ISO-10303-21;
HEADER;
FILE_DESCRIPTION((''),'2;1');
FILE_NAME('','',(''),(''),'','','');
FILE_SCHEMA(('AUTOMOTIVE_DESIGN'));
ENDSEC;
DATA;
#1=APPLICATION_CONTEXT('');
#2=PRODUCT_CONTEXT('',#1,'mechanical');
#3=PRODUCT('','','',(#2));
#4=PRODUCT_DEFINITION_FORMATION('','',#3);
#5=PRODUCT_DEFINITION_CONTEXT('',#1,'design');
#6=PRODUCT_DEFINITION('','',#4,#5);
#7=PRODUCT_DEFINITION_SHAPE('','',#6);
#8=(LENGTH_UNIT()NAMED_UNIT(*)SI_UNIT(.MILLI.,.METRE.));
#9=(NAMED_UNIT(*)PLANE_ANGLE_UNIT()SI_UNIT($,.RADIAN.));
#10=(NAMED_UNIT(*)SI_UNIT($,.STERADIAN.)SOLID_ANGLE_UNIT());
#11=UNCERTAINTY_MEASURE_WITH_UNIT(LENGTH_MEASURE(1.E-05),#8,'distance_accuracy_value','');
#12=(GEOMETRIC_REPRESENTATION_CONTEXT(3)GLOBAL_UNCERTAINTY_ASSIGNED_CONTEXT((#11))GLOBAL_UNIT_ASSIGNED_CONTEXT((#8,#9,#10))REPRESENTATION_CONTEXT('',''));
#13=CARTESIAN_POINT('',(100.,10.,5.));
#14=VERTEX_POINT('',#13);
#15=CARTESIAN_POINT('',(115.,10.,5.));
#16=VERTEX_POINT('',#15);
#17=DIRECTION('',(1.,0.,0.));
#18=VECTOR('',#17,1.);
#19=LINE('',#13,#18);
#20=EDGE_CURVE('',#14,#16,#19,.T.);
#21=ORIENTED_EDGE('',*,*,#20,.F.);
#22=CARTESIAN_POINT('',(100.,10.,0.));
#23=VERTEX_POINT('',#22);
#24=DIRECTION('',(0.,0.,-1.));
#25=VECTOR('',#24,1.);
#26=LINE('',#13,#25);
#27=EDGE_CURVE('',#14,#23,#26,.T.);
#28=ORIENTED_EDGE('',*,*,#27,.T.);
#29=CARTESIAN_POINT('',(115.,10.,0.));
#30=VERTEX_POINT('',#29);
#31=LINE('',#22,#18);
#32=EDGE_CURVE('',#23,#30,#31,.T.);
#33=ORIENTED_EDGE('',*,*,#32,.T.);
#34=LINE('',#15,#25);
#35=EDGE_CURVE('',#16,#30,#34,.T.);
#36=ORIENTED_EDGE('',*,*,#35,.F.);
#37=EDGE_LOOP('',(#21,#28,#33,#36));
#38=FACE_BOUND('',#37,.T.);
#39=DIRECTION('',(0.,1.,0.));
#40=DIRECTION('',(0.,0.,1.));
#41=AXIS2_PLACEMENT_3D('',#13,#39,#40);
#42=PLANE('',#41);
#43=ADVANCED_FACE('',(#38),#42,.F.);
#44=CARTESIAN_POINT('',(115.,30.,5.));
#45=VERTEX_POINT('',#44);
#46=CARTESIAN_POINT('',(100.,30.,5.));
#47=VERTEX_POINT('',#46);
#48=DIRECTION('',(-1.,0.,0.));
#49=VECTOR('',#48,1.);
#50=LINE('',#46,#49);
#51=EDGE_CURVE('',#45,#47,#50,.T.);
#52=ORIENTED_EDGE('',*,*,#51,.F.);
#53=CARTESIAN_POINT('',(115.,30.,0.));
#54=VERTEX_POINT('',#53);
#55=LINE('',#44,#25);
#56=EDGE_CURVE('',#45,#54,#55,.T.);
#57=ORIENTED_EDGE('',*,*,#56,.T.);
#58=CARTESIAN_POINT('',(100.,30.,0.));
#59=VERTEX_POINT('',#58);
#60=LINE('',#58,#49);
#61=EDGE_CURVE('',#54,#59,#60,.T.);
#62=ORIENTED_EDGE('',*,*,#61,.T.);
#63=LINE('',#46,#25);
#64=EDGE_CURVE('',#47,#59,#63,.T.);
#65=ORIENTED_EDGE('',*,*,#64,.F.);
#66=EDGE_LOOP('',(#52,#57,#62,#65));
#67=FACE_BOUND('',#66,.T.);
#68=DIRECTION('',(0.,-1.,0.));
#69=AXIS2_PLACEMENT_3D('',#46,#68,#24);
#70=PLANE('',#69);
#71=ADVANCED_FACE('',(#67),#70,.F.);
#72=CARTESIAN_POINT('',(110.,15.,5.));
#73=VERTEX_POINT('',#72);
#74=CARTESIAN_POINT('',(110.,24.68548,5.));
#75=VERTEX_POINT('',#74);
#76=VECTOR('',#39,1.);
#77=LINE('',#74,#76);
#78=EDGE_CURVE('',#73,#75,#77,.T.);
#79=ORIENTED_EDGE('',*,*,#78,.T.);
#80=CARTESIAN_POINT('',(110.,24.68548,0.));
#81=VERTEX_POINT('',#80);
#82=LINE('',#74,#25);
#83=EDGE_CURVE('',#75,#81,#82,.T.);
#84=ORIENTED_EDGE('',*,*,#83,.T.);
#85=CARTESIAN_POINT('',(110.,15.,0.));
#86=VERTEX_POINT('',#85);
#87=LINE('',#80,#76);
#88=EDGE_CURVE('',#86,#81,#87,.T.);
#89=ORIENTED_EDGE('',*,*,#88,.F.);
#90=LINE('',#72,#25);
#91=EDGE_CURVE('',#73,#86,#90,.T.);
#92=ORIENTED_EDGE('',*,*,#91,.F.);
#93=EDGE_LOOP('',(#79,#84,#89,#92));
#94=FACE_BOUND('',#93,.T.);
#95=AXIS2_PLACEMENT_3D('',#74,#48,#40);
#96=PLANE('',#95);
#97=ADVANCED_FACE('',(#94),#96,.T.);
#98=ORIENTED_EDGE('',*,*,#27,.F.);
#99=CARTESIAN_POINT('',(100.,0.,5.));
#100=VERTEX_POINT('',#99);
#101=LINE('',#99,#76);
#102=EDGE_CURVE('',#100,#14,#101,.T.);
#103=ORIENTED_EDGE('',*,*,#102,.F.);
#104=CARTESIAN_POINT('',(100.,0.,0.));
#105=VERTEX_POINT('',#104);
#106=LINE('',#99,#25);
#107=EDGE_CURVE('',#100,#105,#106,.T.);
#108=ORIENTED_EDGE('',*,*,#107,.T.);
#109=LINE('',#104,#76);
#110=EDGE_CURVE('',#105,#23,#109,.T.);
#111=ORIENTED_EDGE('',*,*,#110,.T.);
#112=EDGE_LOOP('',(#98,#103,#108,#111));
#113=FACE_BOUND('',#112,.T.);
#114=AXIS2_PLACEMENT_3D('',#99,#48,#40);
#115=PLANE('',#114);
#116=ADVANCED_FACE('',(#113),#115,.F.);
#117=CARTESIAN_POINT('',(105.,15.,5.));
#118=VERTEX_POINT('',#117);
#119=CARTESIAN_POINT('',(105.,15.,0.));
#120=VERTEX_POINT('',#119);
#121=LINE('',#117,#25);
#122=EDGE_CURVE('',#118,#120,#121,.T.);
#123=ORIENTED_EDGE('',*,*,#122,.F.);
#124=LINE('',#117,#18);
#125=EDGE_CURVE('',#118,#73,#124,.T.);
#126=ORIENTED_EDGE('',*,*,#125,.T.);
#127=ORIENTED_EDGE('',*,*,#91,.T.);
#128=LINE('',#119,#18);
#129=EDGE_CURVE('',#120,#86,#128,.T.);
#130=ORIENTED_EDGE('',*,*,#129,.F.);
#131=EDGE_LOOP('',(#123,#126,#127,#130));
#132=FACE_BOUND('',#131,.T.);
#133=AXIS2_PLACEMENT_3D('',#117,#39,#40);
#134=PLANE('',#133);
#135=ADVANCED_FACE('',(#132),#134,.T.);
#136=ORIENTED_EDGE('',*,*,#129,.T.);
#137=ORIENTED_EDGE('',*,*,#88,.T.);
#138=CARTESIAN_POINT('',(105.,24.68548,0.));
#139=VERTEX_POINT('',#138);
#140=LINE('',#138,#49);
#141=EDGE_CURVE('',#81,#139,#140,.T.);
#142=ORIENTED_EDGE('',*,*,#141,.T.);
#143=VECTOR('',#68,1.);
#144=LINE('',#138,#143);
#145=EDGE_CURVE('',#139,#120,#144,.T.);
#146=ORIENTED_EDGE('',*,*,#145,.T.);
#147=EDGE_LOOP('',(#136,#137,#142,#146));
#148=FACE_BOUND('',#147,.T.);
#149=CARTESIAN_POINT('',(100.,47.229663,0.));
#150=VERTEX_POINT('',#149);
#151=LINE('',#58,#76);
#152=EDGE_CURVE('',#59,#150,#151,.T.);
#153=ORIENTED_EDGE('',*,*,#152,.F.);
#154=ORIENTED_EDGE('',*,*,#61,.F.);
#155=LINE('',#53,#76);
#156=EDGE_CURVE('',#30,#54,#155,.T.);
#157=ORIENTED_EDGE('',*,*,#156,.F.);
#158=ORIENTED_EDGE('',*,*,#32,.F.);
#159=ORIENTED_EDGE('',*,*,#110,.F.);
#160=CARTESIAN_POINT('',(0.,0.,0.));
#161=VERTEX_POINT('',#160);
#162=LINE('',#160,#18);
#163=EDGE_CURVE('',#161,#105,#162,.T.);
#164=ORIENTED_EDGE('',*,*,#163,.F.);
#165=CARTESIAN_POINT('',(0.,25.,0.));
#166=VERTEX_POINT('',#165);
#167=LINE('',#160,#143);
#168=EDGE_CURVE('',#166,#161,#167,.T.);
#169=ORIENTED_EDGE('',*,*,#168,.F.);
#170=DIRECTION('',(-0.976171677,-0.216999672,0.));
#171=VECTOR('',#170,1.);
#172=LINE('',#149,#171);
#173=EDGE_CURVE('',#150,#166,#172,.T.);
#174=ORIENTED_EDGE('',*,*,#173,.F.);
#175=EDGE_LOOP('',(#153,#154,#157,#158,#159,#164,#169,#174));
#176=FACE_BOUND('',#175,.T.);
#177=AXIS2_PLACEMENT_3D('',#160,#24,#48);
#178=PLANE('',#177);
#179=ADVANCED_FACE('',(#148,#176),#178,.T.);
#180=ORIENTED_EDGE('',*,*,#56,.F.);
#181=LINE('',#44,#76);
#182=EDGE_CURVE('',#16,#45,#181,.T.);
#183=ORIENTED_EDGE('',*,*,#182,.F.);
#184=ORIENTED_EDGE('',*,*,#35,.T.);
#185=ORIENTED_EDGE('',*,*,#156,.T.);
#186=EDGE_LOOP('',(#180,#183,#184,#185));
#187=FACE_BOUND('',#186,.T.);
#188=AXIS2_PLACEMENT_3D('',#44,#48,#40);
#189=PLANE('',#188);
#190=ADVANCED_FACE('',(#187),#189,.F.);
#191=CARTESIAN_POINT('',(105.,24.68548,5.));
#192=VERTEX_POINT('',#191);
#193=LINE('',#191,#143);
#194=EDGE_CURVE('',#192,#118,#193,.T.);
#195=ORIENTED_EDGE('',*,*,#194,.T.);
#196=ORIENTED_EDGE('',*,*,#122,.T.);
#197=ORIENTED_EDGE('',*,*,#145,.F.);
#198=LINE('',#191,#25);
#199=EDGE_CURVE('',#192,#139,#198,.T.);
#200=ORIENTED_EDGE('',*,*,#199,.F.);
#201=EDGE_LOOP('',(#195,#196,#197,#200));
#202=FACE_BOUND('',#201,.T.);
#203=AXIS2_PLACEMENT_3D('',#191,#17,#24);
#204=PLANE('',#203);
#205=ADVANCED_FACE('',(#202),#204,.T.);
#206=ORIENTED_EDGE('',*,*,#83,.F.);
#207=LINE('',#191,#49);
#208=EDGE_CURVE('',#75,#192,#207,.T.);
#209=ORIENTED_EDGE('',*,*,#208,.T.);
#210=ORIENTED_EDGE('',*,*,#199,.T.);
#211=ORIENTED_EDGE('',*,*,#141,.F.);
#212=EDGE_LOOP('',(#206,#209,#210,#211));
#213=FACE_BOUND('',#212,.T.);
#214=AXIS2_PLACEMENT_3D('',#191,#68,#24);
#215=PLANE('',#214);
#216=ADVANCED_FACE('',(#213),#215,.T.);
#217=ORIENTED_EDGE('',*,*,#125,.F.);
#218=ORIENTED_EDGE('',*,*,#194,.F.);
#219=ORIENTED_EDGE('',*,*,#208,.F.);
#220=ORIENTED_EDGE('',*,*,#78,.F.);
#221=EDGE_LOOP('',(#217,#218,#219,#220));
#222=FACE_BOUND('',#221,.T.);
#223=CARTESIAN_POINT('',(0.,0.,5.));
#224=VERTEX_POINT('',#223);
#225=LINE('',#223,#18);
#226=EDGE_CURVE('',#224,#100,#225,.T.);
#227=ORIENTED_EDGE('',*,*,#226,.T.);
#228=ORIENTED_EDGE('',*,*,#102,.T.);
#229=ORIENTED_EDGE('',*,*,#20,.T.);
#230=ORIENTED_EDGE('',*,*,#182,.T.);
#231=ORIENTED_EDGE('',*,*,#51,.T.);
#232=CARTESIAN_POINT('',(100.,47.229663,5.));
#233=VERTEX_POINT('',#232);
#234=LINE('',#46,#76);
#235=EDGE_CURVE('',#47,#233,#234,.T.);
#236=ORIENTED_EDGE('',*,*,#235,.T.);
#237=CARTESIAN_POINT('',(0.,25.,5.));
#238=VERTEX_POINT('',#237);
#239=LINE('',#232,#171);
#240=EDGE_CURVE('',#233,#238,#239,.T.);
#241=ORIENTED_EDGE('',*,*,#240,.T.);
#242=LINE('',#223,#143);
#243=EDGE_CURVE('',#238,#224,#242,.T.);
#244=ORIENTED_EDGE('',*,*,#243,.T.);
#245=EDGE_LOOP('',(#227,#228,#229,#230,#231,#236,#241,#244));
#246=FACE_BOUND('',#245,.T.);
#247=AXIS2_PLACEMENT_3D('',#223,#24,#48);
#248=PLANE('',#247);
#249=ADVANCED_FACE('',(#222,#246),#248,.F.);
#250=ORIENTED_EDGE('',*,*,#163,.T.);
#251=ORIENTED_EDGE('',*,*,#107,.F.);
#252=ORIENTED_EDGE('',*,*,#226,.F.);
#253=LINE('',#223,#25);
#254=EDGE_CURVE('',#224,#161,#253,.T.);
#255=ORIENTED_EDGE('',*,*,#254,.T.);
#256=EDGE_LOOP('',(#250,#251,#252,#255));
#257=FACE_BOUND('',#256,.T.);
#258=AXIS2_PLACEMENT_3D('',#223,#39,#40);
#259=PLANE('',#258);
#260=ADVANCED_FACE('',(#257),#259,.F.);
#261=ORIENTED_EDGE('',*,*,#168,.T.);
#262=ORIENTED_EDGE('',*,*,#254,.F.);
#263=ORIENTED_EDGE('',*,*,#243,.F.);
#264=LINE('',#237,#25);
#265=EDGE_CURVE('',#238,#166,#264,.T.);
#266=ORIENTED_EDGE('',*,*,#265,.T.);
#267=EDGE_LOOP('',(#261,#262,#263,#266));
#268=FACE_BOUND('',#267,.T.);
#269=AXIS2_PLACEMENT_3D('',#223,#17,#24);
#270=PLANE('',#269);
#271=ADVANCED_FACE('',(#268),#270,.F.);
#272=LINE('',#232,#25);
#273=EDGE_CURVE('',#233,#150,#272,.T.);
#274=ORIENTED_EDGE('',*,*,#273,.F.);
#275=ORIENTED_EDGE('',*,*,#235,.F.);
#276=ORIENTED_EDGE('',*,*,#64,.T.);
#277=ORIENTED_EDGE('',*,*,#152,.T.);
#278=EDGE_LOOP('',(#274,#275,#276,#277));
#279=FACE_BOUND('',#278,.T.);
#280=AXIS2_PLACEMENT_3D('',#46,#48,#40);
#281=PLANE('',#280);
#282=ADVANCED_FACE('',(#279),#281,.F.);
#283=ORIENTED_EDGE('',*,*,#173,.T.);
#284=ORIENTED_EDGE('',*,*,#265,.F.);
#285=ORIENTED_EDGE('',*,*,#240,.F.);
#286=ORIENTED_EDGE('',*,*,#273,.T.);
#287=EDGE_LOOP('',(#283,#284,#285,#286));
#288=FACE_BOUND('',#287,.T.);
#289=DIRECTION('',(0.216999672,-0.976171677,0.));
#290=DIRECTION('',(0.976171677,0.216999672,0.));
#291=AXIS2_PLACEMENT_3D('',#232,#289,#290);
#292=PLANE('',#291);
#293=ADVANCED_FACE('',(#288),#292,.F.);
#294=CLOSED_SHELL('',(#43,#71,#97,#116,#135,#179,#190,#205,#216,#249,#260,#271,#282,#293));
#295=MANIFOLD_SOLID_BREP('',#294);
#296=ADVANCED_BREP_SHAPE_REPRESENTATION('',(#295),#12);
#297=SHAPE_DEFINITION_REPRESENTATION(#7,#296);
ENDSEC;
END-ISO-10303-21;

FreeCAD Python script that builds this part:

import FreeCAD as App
import Part
import Sketcher

V = App.Vector
Q = App.Units.Quantity


def add_polygon(sketch, points):
    """Adds a closed chain of lines whose ends are joined by coincident constraints."""
    first, n = sketch.GeometryCount, len(points)
    for a, b in zip(points, points[1:] + points[:1]):
        sketch.addGeometry(Part.LineSegment(App.Vector(*a, 0), App.Vector(*b, 0)), False)
    for i in range(n):
        sketch.addConstraint(Sketcher.Constraint("Coincident", first + i, 2, first + (i + 1) % n, 1))

doc = App.newDocument("Part")
body = doc.addObject("PartDesign::Body", "Body")

# Sketch on XY plane
sketch1 = body.newObject("Sketcher::SketchObject", "Sketch")
sketch1.AttachmentSupport = (doc.getObject("XY_Plane"), [""])
sketch1.MapMode = "FlatFace"
add_polygon(sketch1, [(100, 30), (100, 47), (0, 25), (0, 0), (100, 0), (100, 10), (115, 10), (115, 30)])  # lines 0-7
add_polygon(sketch1, [(110, 15), (105, 15), (105, 25), (110, 25)])  # lines 8-11
sketch1.addConstraint([
    Sketcher.Constraint("Vertical", 0),
    Sketcher.Constraint("Vertical", 2),
    Sketcher.Constraint("Horizontal", 3),
    Sketcher.Constraint("Vertical", 4),
    Sketcher.Constraint("Horizontal", 5),
    Sketcher.Constraint("Vertical", 6),
    Sketcher.Constraint("Horizontal", 7),
    Sketcher.Constraint("Horizontal", 8),
    Sketcher.Constraint("Vertical", 9),
    Sketcher.Constraint("Horizontal", 10),
    Sketcher.Constraint("Vertical", 11),
    Sketcher.Constraint("Coincident", 2, 2, -1, 1),
    Sketcher.Constraint("Vertical", 0, 2, 3, 2),
    Sketcher.Constraint("DistanceX", 3, 1, 3, 2, Q("100 mm")),
    Sketcher.Constraint("DistanceX", 5, 1, 5, 2, Q("15 mm")),
    Sketcher.Constraint("DistanceX", 8, 2, 8, 1, Q("5 mm")),
    Sketcher.Constraint("DistanceY", 2, 2, 2, 1, Q("25 mm")),
    Sketcher.Constraint("DistanceY", 4, 1, 4, 2, Q("10 mm")),
    Sketcher.Constraint("DistanceY", 6, 1, 6, 2, Q("20 mm")),
    Sketcher.Constraint("DistanceX", -1, 1, 8, 2, Q("105 mm")),
    Sketcher.Constraint("DistanceY", -1, 1, 8, 2, Q("15 mm")),
    Sketcher.Constraint("DistanceY", 9, 1, 9, 2, Q("9.68548 mm")),
    Sketcher.Constraint("DistanceY", 0, 1, 0, 2, Q("17.229663 mm")),
])
pad1 = body.newObject("PartDesign::Pad", "Pad")
pad1.Profile = sketch1
pad1.Length = 5

doc.recompute()
